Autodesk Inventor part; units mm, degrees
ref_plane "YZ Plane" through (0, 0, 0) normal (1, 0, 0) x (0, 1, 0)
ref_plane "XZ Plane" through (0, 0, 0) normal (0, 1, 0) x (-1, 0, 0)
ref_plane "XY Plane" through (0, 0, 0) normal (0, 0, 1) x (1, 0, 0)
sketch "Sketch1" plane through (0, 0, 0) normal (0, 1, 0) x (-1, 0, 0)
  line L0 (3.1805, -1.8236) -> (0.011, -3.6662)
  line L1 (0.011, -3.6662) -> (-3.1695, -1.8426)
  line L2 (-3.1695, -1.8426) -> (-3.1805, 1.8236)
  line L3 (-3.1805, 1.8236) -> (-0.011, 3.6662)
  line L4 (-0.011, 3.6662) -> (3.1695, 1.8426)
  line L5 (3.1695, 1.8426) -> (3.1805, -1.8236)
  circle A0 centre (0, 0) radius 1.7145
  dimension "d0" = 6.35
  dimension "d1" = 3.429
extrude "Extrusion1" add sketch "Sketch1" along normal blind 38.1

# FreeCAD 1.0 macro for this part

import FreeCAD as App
import Part
import Sketcher

V = App.Vector
Q = App.Units.Quantity


def add_polygon(sketch, points):
    """Adds a closed chain of lines whose ends are joined by coincident constraints."""
    first, n = sketch.GeometryCount, len(points)
    for a, b in zip(points, points[1:] + points[:1]):
        sketch.addGeometry(Part.LineSegment(App.Vector(*a, 0), App.Vector(*b, 0)), False)
    for i in range(n):
        sketch.addConstraint(Sketcher.Constraint("Coincident", first + i, 2, first + (i + 1) % n, 1))

doc = App.newDocument("Part")
body = doc.addObject("PartDesign::Body", "Body")

sketch1 = body.newObject("Sketcher::SketchObject", "Sketch")
sketch1.AttachmentSupport = (doc.getObject("XZ_Plane"), [""])
sketch1.MapMode = "FlatFace"
add_polygon(sketch1, [(0, -3.7), (-3.2, -1.8), (-3.2, 1.8), (0, 3.7), (3.2, 1.8), (3.2, -1.8)])
sketch1.addGeometry(Part.Circle(V(0, 0, 0), V(0, 0, 1), 1.7), False)
sketch1.addConstraint([
    Sketcher.Constraint("Coincident", 6, 3, -1, 1),
    Sketcher.Constraint("Symmetric", 0, 2, 3, 2, -1, 1),
    Sketcher.Constraint("Symmetric", 1, 2, 4, 2, -1, 1),
    Sketcher.Constraint("Symmetric", 2, 2, 5, 2, -1, 1),
    Sketcher.Constraint("Equal", 0, 1),
    Sketcher.Constraint("Equal", 1, 2),
    Sketcher.Constraint("Diameter", 6, Q("0.135 in")),
    Sketcher.Constraint("DistanceX", 1, 2, 3, 2, Q("0.25 in")),
    Sketcher.Constraint("DistanceY", 0, 2, -1, 1, Q("0.0718 in")),
    Sketcher.Constraint("DistanceY", 1, 2, 2, 2, Q("0.0718 in")),
    Sketcher.Constraint("DistanceX", 0, 2, -1, 1, 3.1805),
])
pad1 = body.newObject("PartDesign::Pad", "Pad")
pad1.Profile = sketch1
pad1.Length = Q("1.5 in")
pad1.Reversed = True

doc.recompute()
